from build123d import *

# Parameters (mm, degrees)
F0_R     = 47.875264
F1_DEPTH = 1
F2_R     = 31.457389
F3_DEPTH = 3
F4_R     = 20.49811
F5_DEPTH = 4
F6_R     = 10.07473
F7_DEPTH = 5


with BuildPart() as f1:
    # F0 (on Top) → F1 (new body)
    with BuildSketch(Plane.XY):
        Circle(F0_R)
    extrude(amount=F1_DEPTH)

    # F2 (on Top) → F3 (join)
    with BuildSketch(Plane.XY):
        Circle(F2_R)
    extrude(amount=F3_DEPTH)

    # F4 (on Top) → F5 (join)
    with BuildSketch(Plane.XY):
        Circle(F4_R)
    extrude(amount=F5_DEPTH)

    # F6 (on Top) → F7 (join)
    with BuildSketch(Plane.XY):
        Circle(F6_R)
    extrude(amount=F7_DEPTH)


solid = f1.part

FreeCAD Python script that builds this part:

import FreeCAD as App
import Part
import Sketcher

doc = App.newDocument("Part")
body = doc.addObject("PartDesign::Body", "Body")

# Sketch on XY plane
sketch1 = doc.addObject("Sketcher::SketchObject", "Sketch")
body.addObject(sketch1)
sketch1.AttachmentSupport = (doc.XY_Plane, [""])
sketch1.MapMode = "FlatFace"
sketch1.addGeometry(Part.Circle(App.Vector(0, 0, 0), App.Vector(0, 0, 1), 48), False)
sketch1.addConstraint(Sketcher.Constraint("Coincident", 0, 3, -1, 1))
sketch1.addConstraint(Sketcher.Constraint("Diameter", 0, 95.750528))
pad1 = doc.addObject("PartDesign::Pad", "Pad")
body.addObject(pad1)
pad1.Profile = sketch1
pad1.Length = 1

# Sketch on XY plane
sketch2 = doc.addObject("Sketcher::SketchObject", "Sketch001")
body.addObject(sketch2)
sketch2.AttachmentSupport = (doc.XY_Plane, [""])
sketch2.MapMode = "FlatFace"
sketch2.addGeometry(Part.Circle(App.Vector(0, 0, 0), App.Vector(0, 0, 1), 31), False)
sketch2.addConstraint(Sketcher.Constraint("Coincident", 0, 3, -1, 1))
sketch2.addConstraint(Sketcher.Constraint("Diameter", 0, 62.914778))
pad2 = doc.addObject("PartDesign::Pad", "Pad001")
body.addObject(pad2)
pad2.Profile = sketch2
pad2.Length = 3

# Sketch on XY plane
sketch3 = doc.addObject("Sketcher::SketchObject", "Sketch002")
body.addObject(sketch3)
sketch3.AttachmentSupport = (doc.XY_Plane, [""])
sketch3.MapMode = "FlatFace"
sketch3.addGeometry(Part.Circle(App.Vector(0, 0, 0), App.Vector(0, 0, 1), 20), False)
sketch3.addConstraint(Sketcher.Constraint("Coincident", 0, 3, -1, 1))
sketch3.addConstraint(Sketcher.Constraint("Diameter", 0, 40.99622))
pad3 = doc.addObject("PartDesign::Pad", "Pad002")
body.addObject(pad3)
pad3.Profile = sketch3
pad3.Length = 4

# Sketch on XY plane
sketch4 = doc.addObject("Sketcher::SketchObject", "Sketch003")
body.addObject(sketch4)
sketch4.AttachmentSupport = (doc.XY_Plane, [""])
sketch4.MapMode = "FlatFace"
sketch4.addGeometry(Part.Circle(App.Vector(0, 0, 0), App.Vector(0, 0, 1), 10), False)
sketch4.addConstraint(Sketcher.Constraint("Coincident", 0, 3, -1, 1))
sketch4.addConstraint(Sketcher.Constraint("Diameter", 0, 20.14946))
pad4 = doc.addObject("PartDesign::Pad", "Pad003")
body.addObject(pad4)
pad4.Profile = sketch4
pad4.Length = 5

doc.recompute()
